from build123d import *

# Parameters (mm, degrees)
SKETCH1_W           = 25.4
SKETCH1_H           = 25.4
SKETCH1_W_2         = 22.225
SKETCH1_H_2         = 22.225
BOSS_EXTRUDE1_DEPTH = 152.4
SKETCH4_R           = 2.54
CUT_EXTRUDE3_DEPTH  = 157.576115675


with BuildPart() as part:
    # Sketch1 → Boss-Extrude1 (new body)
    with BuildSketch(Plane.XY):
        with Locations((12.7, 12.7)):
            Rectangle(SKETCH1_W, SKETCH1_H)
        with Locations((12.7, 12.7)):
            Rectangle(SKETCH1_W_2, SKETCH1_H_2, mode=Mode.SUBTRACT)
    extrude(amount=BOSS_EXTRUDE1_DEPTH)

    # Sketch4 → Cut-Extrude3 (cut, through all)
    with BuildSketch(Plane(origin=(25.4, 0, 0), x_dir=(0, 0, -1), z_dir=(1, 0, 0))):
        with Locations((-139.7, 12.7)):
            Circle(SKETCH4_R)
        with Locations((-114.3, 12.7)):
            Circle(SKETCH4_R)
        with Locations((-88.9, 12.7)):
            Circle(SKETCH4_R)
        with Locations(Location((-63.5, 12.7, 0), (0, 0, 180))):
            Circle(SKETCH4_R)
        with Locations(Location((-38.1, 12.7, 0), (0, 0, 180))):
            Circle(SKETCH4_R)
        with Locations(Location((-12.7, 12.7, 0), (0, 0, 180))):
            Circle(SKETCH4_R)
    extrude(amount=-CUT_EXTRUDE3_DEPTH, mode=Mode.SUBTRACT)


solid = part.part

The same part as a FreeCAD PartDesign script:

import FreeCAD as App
import Part
import Sketcher
Q = App.Units.Quantity

doc = App.newDocument("Part")
body = doc.addObject("PartDesign::Body", "Body")

# Sketch on XY plane
sketch1 = body.newObject("Sketcher::SketchObject", "Sketch")
sketch1.AttachmentSupport = (doc.getObject("XY_Plane"), [""])
sketch1.MapMode = "FlatFace"
sketch1.addGeometry(Part.LineSegment(App.Vector(0, 25, 0), App.Vector(0, 0, 0)), False)
sketch1.addGeometry(Part.LineSegment(App.Vector(0, 0, 0), App.Vector(25, 0, 0)), False)
sketch1.addGeometry(Part.LineSegment(App.Vector(25, 0, 0), App.Vector(25, 25, 0)), False)
sketch1.addGeometry(Part.LineSegment(App.Vector(25, 25, 0), App.Vector(0, 25, 0)), False)
sketch1.addGeometry(Part.LineSegment(App.Vector(24, 2, 0), App.Vector(2, 2, 0)), False)
sketch1.addGeometry(Part.LineSegment(App.Vector(2, 2, 0), App.Vector(2, 24, 0)), False)
sketch1.addGeometry(Part.LineSegment(App.Vector(2, 24, 0), App.Vector(24, 24, 0)), False)
sketch1.addGeometry(Part.LineSegment(App.Vector(24, 24, 0), App.Vector(24, 2, 0)), False)
sketch1.addConstraint(Sketcher.Constraint("Coincident", 0, 2, 1, 1))
sketch1.addConstraint(Sketcher.Constraint("Coincident", 1, 2, 2, 1))
sketch1.addConstraint(Sketcher.Constraint("Coincident", 2, 2, 3, 1))
sketch1.addConstraint(Sketcher.Constraint("Coincident", 3, 2, 0, 1))
sketch1.addConstraint(Sketcher.Constraint("Coincident", 4, 2, 5, 1))
sketch1.addConstraint(Sketcher.Constraint("Coincident", 5, 2, 6, 1))
sketch1.addConstraint(Sketcher.Constraint("Coincident", 6, 2, 7, 1))
sketch1.addConstraint(Sketcher.Constraint("Coincident", 7, 2, 4, 1))
sketch1.addConstraint(Sketcher.Constraint("Vertical", 0))
sketch1.addConstraint(Sketcher.Constraint("Horizontal", 1))
sketch1.addConstraint(Sketcher.Constraint("Vertical", 2))
sketch1.addConstraint(Sketcher.Constraint("Horizontal", 3))
sketch1.addConstraint(Sketcher.Constraint("Horizontal", 4))
sketch1.addConstraint(Sketcher.Constraint("Vertical", 5))
sketch1.addConstraint(Sketcher.Constraint("Horizontal", 6))
sketch1.addConstraint(Sketcher.Constraint("Vertical", 7))
sketch1.addConstraint(Sketcher.Constraint("Coincident", 0, 2, -1, 1))
sketch1.addConstraint(Sketcher.Constraint("Equal", 3, 0))
sketch1.addConstraint(Sketcher.Constraint("Equal", 6, 5))
sketch1.addConstraint(Sketcher.Constraint("DistanceX", 1, 1, 1, 2, Q("1 in")))
sketch1.addConstraint(Sketcher.Constraint("DistanceX", 4, 2, 4, 1, Q("0.875 in")))
sketch1.addConstraint(Sketcher.Constraint("DistanceX", -1, 1, 4, 2, Q("0.0625 in")))
sketch1.addConstraint(Sketcher.Constraint("DistanceY", -1, 1, 4, 2, Q("0.0625 in")))
pad1 = body.newObject("PartDesign::Pad", "Pad")
pad1.Profile = sketch1
pad1.Length = Q("6 in")

# Sketch on YZ plane
sketch2 = body.newObject("Sketcher::SketchObject", "Sketch001")
sketch2.AttachmentSupport = (doc.getObject("YZ_Plane"), [""])
sketch2.MapMode = "FlatFace"
sketch2.AttachmentOffset = App.Placement(App.Vector(0, 0, 1 * 25.4), App.Rotation())
sketch2.addGeometry(Part.Circle(App.Vector(12.7, 139.7, 0), App.Vector(0, 0, 1), 2.5), False)
sketch2.addGeometry(Part.Circle(App.Vector(12.7, 114.3, 0), App.Vector(0, 0, 1), 2.5), False)
sketch2.addGeometry(Part.Circle(App.Vector(12.7, 88.9, 0), App.Vector(0, 0, 1), 2.5), False)
sketch2.addGeometry(Part.Circle(App.Vector(12.7, 63.5, 0), App.Vector(0, 0, 1), 2.5), False)
sketch2.addGeometry(Part.Circle(App.Vector(12.7, 38.1, 0), App.Vector(0, 0, 1), 2.5), False)
sketch2.addGeometry(Part.Circle(App.Vector(12.7, 12.7, 0), App.Vector(0, 0, 1), 2.5), False)
sketch2.addConstraint(Sketcher.Constraint("Equal", 0, 1))
sketch2.addConstraint(Sketcher.Constraint("Equal", 1, 2))
sketch2.addConstraint(Sketcher.Constraint("Equal", 2, 3))
sketch2.addConstraint(Sketcher.Constraint("Equal", 3, 4))
sketch2.addConstraint(Sketcher.Constraint("Equal", 4, 5))
sketch2.addConstraint(Sketcher.Constraint("Vertical", 0, 3, 1, 3))
sketch2.addConstraint(Sketcher.Constraint("Vertical", 1, 3, 2, 3))
sketch2.addConstraint(Sketcher.Constraint("Vertical", 2, 3, 3, 3))
sketch2.addConstraint(Sketcher.Constraint("Vertical", 3, 3, 4, 3))
sketch2.addConstraint(Sketcher.Constraint("Vertical", 4, 3, 5, 3))
sketch2.addConstraint(Sketcher.Constraint("Diameter", 0, Q("0.2 in")))
sketch2.addConstraint(Sketcher.Constraint("DistanceY", 1, 3, 0, 3, Q("1 in")))
sketch2.addConstraint(Sketcher.Constraint("DistanceY", 2, 3, 1, 3, Q("1 in")))
sketch2.addConstraint(Sketcher.Constraint("DistanceY", 3, 3, 2, 3, Q("1 in")))
sketch2.addConstraint(Sketcher.Constraint("DistanceY", 4, 3, 3, 3, Q("1 in")))
sketch2.addConstraint(Sketcher.Constraint("DistanceY", 5, 3, 4, 3, Q("1 in")))
sketch2.addConstraint(Sketcher.Constraint("DistanceX", -1, 1, 0, 3, Q("0.5 in")))
sketch2.addConstraint(Sketcher.Constraint("DistanceY", -1, 1, 0, 3, Q("5.5 in")))
pocket1 = body.newObject("PartDesign::Pocket", "Pocket")
pocket1.Profile = sketch2
pocket1.Type = "ThroughAll"

doc.recompute()
